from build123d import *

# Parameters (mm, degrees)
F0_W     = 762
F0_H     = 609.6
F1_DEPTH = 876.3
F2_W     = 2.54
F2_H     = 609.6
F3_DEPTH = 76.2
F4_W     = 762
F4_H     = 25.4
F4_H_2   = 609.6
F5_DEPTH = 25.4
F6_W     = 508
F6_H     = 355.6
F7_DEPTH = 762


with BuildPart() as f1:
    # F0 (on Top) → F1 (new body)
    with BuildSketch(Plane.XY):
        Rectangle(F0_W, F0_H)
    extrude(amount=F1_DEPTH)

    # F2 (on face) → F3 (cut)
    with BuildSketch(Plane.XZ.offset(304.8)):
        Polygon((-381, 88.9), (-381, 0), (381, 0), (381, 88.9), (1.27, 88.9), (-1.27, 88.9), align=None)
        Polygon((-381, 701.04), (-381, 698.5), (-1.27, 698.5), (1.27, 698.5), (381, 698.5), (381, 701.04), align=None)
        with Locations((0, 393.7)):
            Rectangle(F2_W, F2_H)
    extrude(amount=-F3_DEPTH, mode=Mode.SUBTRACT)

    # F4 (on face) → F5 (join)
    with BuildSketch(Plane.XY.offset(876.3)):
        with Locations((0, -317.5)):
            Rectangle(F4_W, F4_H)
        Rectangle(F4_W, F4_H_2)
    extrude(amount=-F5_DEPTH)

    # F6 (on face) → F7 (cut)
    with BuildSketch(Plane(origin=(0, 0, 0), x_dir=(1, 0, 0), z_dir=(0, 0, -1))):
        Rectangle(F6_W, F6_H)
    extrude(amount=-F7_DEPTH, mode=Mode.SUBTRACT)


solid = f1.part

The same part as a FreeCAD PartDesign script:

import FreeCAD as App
import Part
import Sketcher
from FreeCAD import Vector
Q = App.Units.Quantity


def add_polygon(sketch, points):
    """Adds a closed chain of lines whose ends are joined by coincident constraints."""
    first, n = sketch.GeometryCount, len(points)
    for a, b in zip(points, points[1:] + points[:1]):
        sketch.addGeometry(Part.LineSegment(App.Vector(*a, 0), App.Vector(*b, 0)), False)
    for i in range(n):
        sketch.addConstraint(Sketcher.Constraint("Coincident", first + i, 2, first + (i + 1) % n, 1))

doc = App.newDocument("Part")
body = doc.addObject("PartDesign::Body", "Body")

# Sketch on XY plane
sketch1 = doc.addObject("Sketcher::SketchObject", "Sketch")
body.addObject(sketch1)
sketch1.AttachmentSupport = (doc.XY_Plane, [""])
sketch1.MapMode = "FlatFace"
add_polygon(sketch1, [(-381, 305), (-381, -305), (381, -305), (381, 305)])  # lines 0-3
sketch1.addConstraint([
    Sketcher.Constraint("Vertical", 0),
    Sketcher.Constraint("Horizontal", 1),
    Sketcher.Constraint("Vertical", 2),
    Sketcher.Constraint("Horizontal", 3),
    Sketcher.Constraint("Symmetric", 0, 2, 2, 2, -1, 1),
    Sketcher.Constraint("DistanceX", 1, 1, 1, 2, Q("30 in")),
    Sketcher.Constraint("DistanceY", 0, 2, 0, 1, Q("24 in")),
])
pad1 = doc.addObject("PartDesign::Pad", "Pad")
body.addObject(pad1)
pad1.Profile = sketch1
pad1.Length = Q("34.5 in")

# Sketch on XZ plane
sketch2 = doc.addObject("Sketcher::SketchObject", "Sketch001")
body.addObject(sketch2)
sketch2.AttachmentSupport = (doc.XZ_Plane, [""])
sketch2.MapMode = "FlatFace"
sketch2.AttachmentOffset = App.Placement(Vector(0, 0, 12 * 25.4), App.Rotation())
add_polygon(sketch2, [(-381, 88.9), (-381, 0), (381, 0), (381, 88.9), (1.3, 88.9), (1.3, 698.5), (381, 698.5), (381, 701), (-381, 701), (-381, 698.5), (-1.3, 698.5), (-1.3, 88.9)])  # lines 0-11
sketch2.addConstraint([
    Sketcher.Constraint("Vertical", 0),
    Sketcher.Constraint("Horizontal", 1),
    Sketcher.Constraint("Vertical", 2),
    Sketcher.Constraint("Horizontal", 3),
    Sketcher.Constraint("Vertical", 4),
    Sketcher.Constraint("Horizontal", 5),
    Sketcher.Constraint("Vertical", 6),
    Sketcher.Constraint("Horizontal", 7),
    Sketcher.Constraint("Vertical", 8),
    Sketcher.Constraint("Horizontal", 9),
    Sketcher.Constraint("Vertical", 10),
    Sketcher.Constraint("Horizontal", 11),
    Sketcher.Constraint("Symmetric", 0, 2, 1, 2, -1, 1),
    Sketcher.Constraint("Symmetric", 5, 2, 8, 2, -2),
    Sketcher.Constraint("Symmetric", 3, 2, 10, 2, -2),
    Sketcher.Constraint("Vertical", 2, 2, 5, 2),
    Sketcher.Constraint("DistanceX", 1, 1, 1, 2, Q("30 in")),
    Sketcher.Constraint("DistanceY", 4, 1, 4, 2, Q("24 in")),
    Sketcher.Constraint("DistanceY", 0, 2, 0, 1, Q("3.5 in")),
    Sketcher.Constraint("DistanceY", 6, 1, 6, 2, Q("0.1 in")),
    Sketcher.Constraint("DistanceX", 3, 2, 3, 1, Q("14.95 in")),
])
pocket1 = doc.addObject("PartDesign::Pocket", "Pocket")
body.addObject(pocket1)
pocket1.Profile = sketch2
pocket1.Length = Q("3 in")

# Sketch on XY plane
sketch3 = doc.addObject("Sketcher::SketchObject", "Sketch002")
body.addObject(sketch3)
sketch3.AttachmentSupport = (doc.XY_Plane, [""])
sketch3.MapMode = "FlatFace"
sketch3.AttachmentOffset = App.Placement(Vector(0, 0, 34.5 * 25.4), App.Rotation())
add_polygon(sketch3, [(-381, -330), (381, -330), (381, 305), (-381, 305)])  # lines 0-3
sketch3.addConstraint([
    Sketcher.Constraint("Horizontal", 0),
    Sketcher.Constraint("Vertical", 1),
    Sketcher.Constraint("Horizontal", 2),
    Sketcher.Constraint("Vertical", 3),
    Sketcher.Constraint("DistanceX", 0, 1, 0, 2, Q("30 in")),
    Sketcher.Constraint("DistanceY", 1, 1, 1, 2, Q("25 in")),
    Sketcher.Constraint("DistanceX", -1, 1, 0, 2, Q("15 in")),
    Sketcher.Constraint("DistanceY", 0, 2, -1, 1, Q("13 in")),
])
pad2 = doc.addObject("PartDesign::Pad", "Pad001")
body.addObject(pad2)
pad2.Profile = sketch3
pad2.Length = Q("1 in")
pad2.Reversed = True

# Sketch on XY plane
sketch4 = doc.addObject("Sketcher::SketchObject", "Sketch003")
body.addObject(sketch4)
sketch4.AttachmentSupport = (doc.XY_Plane, [""])
sketch4.MapMode = "FlatFace"
add_polygon(sketch4, [(-254, -178), (-254, 178), (254, 178), (254, -178)])  # lines 0-3
sketch4.addConstraint([
    Sketcher.Constraint("Vertical", 0),
    Sketcher.Constraint("Horizontal", 1),
    Sketcher.Constraint("Vertical", 2),
    Sketcher.Constraint("Horizontal", 3),
    Sketcher.Constraint("Symmetric", 0, 2, 2, 2, -1, 1),
    Sketcher.Constraint("DistanceX", 1, 1, 1, 2, Q("20 in")),
    Sketcher.Constraint("DistanceY", 0, 1, 0, 2, Q("14 in")),
])
pocket2 = doc.addObject("PartDesign::Pocket", "Pocket001")
body.addObject(pocket2)
pocket2.Profile = sketch4
pocket2.Length = Q("30 in")
pocket2.Reversed = True

doc.recompute()
